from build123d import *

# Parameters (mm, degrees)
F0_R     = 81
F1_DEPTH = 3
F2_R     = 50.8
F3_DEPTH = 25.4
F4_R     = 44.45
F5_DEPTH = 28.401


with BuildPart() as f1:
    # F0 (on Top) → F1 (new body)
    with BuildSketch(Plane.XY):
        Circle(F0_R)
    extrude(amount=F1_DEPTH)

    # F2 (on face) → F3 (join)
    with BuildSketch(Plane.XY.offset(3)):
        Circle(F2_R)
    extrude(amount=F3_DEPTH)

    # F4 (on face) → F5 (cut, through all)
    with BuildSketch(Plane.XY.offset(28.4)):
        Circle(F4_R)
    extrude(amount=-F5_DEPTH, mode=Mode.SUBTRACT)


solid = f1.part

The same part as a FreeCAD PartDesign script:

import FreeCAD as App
import Part
import Sketcher
from FreeCAD import Vector
Q = App.Units.Quantity

doc = App.newDocument("Part")
body = doc.addObject("PartDesign::Body", "Body")

sketch1 = body.newObject("Sketcher::SketchObject", "Sketch")
sketch1.AttachmentSupport = (doc.getObject("XY_Plane"), [""])
sketch1.MapMode = "FlatFace"
sketch1.addGeometry(Part.Circle(Vector(0, 0, 0), Vector(0, 0, 1), 81), False)
sketch1.addConstraint([
    Sketcher.Constraint("Coincident", 0, 3, -1, 1),
    Sketcher.Constraint("Diameter", 0, Q("162 mm")),
])
pad1 = body.newObject("PartDesign::Pad", "Pad")
pad1.Profile = sketch1
pad1.Length = 3

sketch2 = body.newObject("Sketcher::SketchObject", "Sketch001")
sketch2.AttachmentSupport = (doc.getObject("XY_Plane"), [""])
sketch2.MapMode = "FlatFace"
sketch2.AttachmentOffset = App.Placement(Vector(0, 0, 3), App.Rotation())
sketch2.addGeometry(Part.Circle(Vector(0, 0, 0), Vector(0, 0, 1), 50.8), False)
sketch2.addConstraint([
    Sketcher.Constraint("Coincident", 0, 3, -1, 1),
    Sketcher.Constraint("Diameter", 0, Q("4 in")),
])
pad2 = body.newObject("PartDesign::Pad", "Pad001")
pad2.Profile = sketch2
pad2.Length = Q("1 in")

sketch3 = body.newObject("Sketcher::SketchObject", "Sketch002")
sketch3.AttachmentSupport = (doc.getObject("XY_Plane"), [""])
sketch3.MapMode = "FlatFace"
sketch3.AttachmentOffset = App.Placement(Vector(0, 0, 28.4), App.Rotation())
sketch3.addGeometry(Part.Circle(Vector(0, 0, 0), Vector(0, 0, 1), 44.45), False)
sketch3.addConstraint([
    Sketcher.Constraint("Coincident", 0, 3, -1, 1),
    Sketcher.Constraint("Diameter", 0, Q("3.5 in")),
])
pocket1 = body.newObject("PartDesign::Pocket", "Pocket")
pocket1.Profile = sketch3
pocket1.Type = "ThroughAll"

doc.recompute()
